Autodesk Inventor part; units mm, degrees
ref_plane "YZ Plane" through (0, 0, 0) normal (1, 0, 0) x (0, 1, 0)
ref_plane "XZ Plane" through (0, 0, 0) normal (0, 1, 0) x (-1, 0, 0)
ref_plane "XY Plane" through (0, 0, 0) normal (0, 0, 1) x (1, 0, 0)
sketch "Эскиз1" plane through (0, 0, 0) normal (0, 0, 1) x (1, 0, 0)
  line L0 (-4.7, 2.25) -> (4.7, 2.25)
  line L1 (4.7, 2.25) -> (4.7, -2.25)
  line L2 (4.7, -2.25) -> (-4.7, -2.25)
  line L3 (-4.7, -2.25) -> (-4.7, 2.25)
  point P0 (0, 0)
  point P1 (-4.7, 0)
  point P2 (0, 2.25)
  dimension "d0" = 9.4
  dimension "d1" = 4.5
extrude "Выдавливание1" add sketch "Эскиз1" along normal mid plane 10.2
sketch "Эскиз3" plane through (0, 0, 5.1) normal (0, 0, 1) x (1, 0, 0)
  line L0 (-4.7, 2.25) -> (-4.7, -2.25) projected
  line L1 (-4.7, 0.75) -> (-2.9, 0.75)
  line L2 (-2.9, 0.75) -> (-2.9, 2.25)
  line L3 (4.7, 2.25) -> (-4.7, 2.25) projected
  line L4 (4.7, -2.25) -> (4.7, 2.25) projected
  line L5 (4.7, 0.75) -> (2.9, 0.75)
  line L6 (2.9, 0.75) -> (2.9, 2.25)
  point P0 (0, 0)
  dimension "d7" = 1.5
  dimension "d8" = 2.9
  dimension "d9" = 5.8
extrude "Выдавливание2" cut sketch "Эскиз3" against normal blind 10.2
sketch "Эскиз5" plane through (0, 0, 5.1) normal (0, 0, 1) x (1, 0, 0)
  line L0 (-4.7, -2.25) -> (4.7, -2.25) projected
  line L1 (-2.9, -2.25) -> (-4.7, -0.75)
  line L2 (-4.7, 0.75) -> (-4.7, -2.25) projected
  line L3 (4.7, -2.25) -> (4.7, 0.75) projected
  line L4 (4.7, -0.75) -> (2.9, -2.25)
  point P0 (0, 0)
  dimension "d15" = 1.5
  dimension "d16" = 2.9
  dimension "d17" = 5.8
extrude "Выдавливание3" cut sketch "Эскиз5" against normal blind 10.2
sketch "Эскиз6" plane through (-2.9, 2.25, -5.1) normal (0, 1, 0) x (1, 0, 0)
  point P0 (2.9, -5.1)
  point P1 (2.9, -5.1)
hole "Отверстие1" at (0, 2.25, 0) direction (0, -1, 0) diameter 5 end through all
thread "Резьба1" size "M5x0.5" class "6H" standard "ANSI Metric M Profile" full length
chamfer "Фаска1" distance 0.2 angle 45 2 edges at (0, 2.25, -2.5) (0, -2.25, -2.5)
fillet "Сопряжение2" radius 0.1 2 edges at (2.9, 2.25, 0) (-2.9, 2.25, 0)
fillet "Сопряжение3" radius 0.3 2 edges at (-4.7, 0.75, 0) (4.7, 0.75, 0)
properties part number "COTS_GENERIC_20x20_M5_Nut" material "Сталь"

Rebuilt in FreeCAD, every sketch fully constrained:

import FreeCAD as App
import Part
import Sketcher
from FreeCAD import Vector


def edges_at(feature, points):
    """Names of the edges that pass closest to the given points."""
    edges = feature.Shape.Edges
    near = lambda p: min(range(len(edges)), key=lambda i: edges[i].distToShape(Part.Vertex(*p))[0])
    return sorted({f"Edge{near(p) + 1}" for p in points})


def add_polygon(sketch, points):
    """Adds a closed chain of lines whose ends are joined by coincident constraints."""
    first, n = sketch.GeometryCount, len(points)
    for a, b in zip(points, points[1:] + points[:1]):
        sketch.addGeometry(Part.LineSegment(App.Vector(*a, 0), App.Vector(*b, 0)), False)
    for i in range(n):
        sketch.addConstraint(Sketcher.Constraint("Coincident", first + i, 2, first + (i + 1) % n, 1))

doc = App.newDocument("Part")
body = doc.addObject("PartDesign::Body", "Body")

sketch1 = body.newObject("Sketcher::SketchObject", "Sketch")
sketch1.AttachmentSupport = (doc.getObject("XY_Plane"), [""])
sketch1.MapMode = "FlatFace"
add_polygon(sketch1, [(4.7, 2.25), (-4.7, 2.25), (-4.7, -2.25), (4.7, -2.25)])
sketch1.addConstraint([
    Sketcher.Constraint("Horizontal", 0),
    Sketcher.Constraint("Vertical", 1),
    Sketcher.Constraint("Horizontal", 2),
    Sketcher.Constraint("Vertical", 3),
    Sketcher.Constraint("Symmetric", 0, 2, 2, 2, -1, 1),
    Sketcher.Constraint("DistanceX", 0, 2, 0, 1, 9.4),
    Sketcher.Constraint("DistanceY", 1, 2, 1, 1, 4.5),
])
pad1 = body.newObject("PartDesign::Pad", "Pad")
pad1.Profile = sketch1
pad1.Length = 10.2
pad1.Midplane = True

sketch2 = body.newObject("Sketcher::SketchObject", "Sketch001")
sketch2.AttachmentSupport = (doc.getObject("XY_Plane"), [""])
sketch2.MapMode = "FlatFace"
sketch2.AttachmentOffset = App.Placement(Vector(0, 0, 5.1), App.Rotation())
add_polygon(sketch2, [(-2.9, 2.25), (-4.7, 2.25), (-4.7, 0.75), (-2.9, 0.75)])
add_polygon(sketch2, [(4.7, 2.25), (2.9, 2.25), (2.9, 0.75), (4.7, 0.75)])
sketch2.addConstraint([
    Sketcher.Constraint("Horizontal", 0),
    Sketcher.Constraint("Vertical", 1),
    Sketcher.Constraint("Horizontal", 2),
    Sketcher.Constraint("Vertical", 3),
    Sketcher.Constraint("Horizontal", 4),
    Sketcher.Constraint("Vertical", 5),
    Sketcher.Constraint("Horizontal", 6),
    Sketcher.Constraint("Vertical", 7),
    Sketcher.Constraint("Symmetric", 3, 2, 4, 2, -2),
    Sketcher.Constraint("Symmetric", 1, 2, 6, 2, -2),
    Sketcher.Constraint("DistanceY", 1, 2, 1, 1, 1.5),
    Sketcher.Constraint("DistanceX", 2, 2, -1, 1, 2.9),
    Sketcher.Constraint("DistanceX", 0, 2, 0, 1, 1.8),
    Sketcher.Constraint("DistanceY", -1, 1, 0, 2, 2.25),
])
pocket1 = body.newObject("PartDesign::Pocket", "Pocket")
pocket1.Profile = sketch2
pocket1.Length = 10.2

sketch3 = body.newObject("Sketcher::SketchObject", "Sketch002")
sketch3.AttachmentSupport = (doc.getObject("XY_Plane"), [""])
sketch3.MapMode = "FlatFace"
sketch3.AttachmentOffset = App.Placement(Vector(0, 0, 5.1), App.Rotation())
add_polygon(sketch3, [(-4.7, -0.75), (-4.7, -2.25), (-2.9, -2.25)])
add_polygon(sketch3, [(4.7, -0.75), (2.9, -2.25), (4.7, -2.25)])
sketch3.addConstraint([
    Sketcher.Constraint("Vertical", 0),
    Sketcher.Constraint("Horizontal", 1),
    Sketcher.Constraint("Horizontal", 4),
    Sketcher.Constraint("Vertical", 5),
    Sketcher.Constraint("Symmetric", 1, 2, 3, 2, -2),
    Sketcher.Constraint("Symmetric", 2, 2, 5, 2, -2),
    Sketcher.Constraint("DistanceY", 0, 2, 0, 1, 1.5),
    Sketcher.Constraint("DistanceX", 1, 2, -1, 1, 2.9),
    Sketcher.Constraint("DistanceX", 1, 1, 1, 2, 1.8),
    Sketcher.Constraint("DistanceY", 0, 2, -1, 1, 2.25),
])
pocket2 = body.newObject("PartDesign::Pocket", "Pocket001")
pocket2.Profile = sketch3
pocket2.Length = 10.2

sketch4 = body.newObject("Sketcher::SketchObject", "Sketch003")
sketch4.AttachmentSupport = (doc.getObject("XZ_Plane"), [""])
sketch4.MapMode = "FlatFace"
sketch4.AttachmentOffset = App.Placement(Vector(0, 0, -2.25), App.Rotation())
sketch4.addGeometry(Part.Circle(Vector(0, 0, 0), Vector(0, 0, 1), 2.5), False)
sketch4.addConstraint([
    Sketcher.Constraint("Coincident", 0, 3, -1, 1),
    Sketcher.Constraint("Diameter", 0, 5.0),
])
doc.recompute()
hole = body.newObject("PartDesign::Hole", "Hole")
hole.Profile = sketch4
hole.ThreadType = "None"
hole.Diameter = 5
hole.DepthType = "ThroughAll"
hole.Reversed = True
doc.recompute()

chamfer = body.newObject("PartDesign::Chamfer", "Chamfer")
chamfer.Base = (hole, edges_at(hole, [(0, 2.25, -2.5), (0, -2.25, -2.5)]))
chamfer.Size = 0.2
doc.recompute()

fillet = body.newObject("PartDesign::Fillet", "Fillet")
fillet.Base = (chamfer, edges_at(chamfer, [(2.9, 2.25, 0), (-2.9, 2.25, 0)]))
fillet.Radius = 0.1
doc.recompute()

fillet2 = body.newObject("PartDesign::Fillet", "Fillet001")
fillet2.Base = (fillet, edges_at(fillet, [(-4.7, 0.75, 0), (4.7, 0.75, 0)]))
fillet2.Radius = 0.3

doc.recompute()
